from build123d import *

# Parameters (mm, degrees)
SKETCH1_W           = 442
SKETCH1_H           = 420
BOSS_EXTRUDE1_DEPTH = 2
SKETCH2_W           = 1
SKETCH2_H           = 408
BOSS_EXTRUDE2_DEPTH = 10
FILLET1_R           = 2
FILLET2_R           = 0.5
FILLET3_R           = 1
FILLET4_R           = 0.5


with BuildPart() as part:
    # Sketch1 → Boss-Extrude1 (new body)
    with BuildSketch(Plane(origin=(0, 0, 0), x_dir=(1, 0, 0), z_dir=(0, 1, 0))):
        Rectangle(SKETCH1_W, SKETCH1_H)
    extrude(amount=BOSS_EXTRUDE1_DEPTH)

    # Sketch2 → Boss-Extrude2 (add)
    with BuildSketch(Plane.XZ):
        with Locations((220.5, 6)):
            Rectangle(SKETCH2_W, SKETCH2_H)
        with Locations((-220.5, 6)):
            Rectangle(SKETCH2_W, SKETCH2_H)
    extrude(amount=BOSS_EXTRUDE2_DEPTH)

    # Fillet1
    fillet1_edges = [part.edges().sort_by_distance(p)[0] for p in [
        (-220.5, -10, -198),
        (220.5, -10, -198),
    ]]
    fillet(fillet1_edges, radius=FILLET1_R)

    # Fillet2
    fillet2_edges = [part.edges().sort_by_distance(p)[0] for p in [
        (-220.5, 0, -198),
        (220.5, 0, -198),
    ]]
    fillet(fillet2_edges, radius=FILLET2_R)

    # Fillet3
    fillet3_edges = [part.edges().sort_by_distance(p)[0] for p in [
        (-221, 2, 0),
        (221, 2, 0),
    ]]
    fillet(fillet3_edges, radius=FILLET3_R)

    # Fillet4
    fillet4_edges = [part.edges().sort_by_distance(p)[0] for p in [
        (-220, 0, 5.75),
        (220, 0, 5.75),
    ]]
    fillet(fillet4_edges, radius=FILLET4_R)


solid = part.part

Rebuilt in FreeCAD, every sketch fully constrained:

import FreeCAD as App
import Part
import Sketcher
from FreeCAD import Vector
Q = App.Units.Quantity


def edges_at(feature, points):
    """Names of the edges that pass closest to the given points."""
    edges = feature.Shape.Edges
    near = lambda p: min(range(len(edges)), key=lambda i: edges[i].distToShape(Part.Vertex(*p))[0])
    return sorted({f"Edge{near(p) + 1}" for p in points})


def add_polygon(sketch, points):
    """Adds a closed chain of lines whose ends are joined by coincident constraints."""
    first, n = sketch.GeometryCount, len(points)
    for a, b in zip(points, points[1:] + points[:1]):
        sketch.addGeometry(Part.LineSegment(App.Vector(*a, 0), App.Vector(*b, 0)), False)
    for i in range(n):
        sketch.addConstraint(Sketcher.Constraint("Coincident", first + i, 2, first + (i + 1) % n, 1))

doc = App.newDocument("Part")
params = doc.addObject("Spreadsheet::Sheet", "Params")
for row, (alias, value) in enumerate([
    ("sketch1_width", "442 mm"),
    ("sketch1_height", "420 mm"),
    ("pad1_length", "2 mm"),
    ("sketch2_width", "1 mm"),
    ("sketch2_height", "408 mm"),
    ("pad2_length", "10 mm"),
    ("fillet_radius", "2 mm"),
    ("fillet2_radius", "0.5 mm"),
    ("fillet3_radius", "1 mm"),
    ("fillet4_radius", "0.5 mm"),
], start=1):
    params.set(f"A{row}", alias)
    params.set(f"B{row}", "=" + value)
    params.setAlias(f"B{row}", alias)

body = doc.addObject("PartDesign::Body", "Body")

# Sketch on XZ plane
sketch1 = doc.addObject("Sketcher::SketchObject", "Sketch")
body.addObject(sketch1)
sketch1.AttachmentSupport = (doc.XZ_Plane, [""])
sketch1.MapMode = "FlatFace"
add_polygon(sketch1, [(-221, -210), (-221, 210), (221, 210), (221, -210)])  # lines 0-3
sketch1.addConstraint([
    Sketcher.Constraint("Vertical", 0),
    Sketcher.Constraint("Horizontal", 1),
    Sketcher.Constraint("Vertical", 2),
    Sketcher.Constraint("Horizontal", 3),
    Sketcher.Constraint("Symmetric", 0, 2, 2, 2, -1, 1),
    Sketcher.Constraint("DistanceX", 1, 1, 1, 2, Q("442 mm")),
    Sketcher.Constraint("DistanceY", 0, 1, 0, 2, Q("420 mm")),
])
sketch1.setExpression("Constraints[9]", "Params.sketch1_width")
sketch1.setExpression("Constraints[10]", "Params.sketch1_height")
pad1 = doc.addObject("PartDesign::Pad", "Pad")
body.addObject(pad1)
pad1.Profile = sketch1
pad1.setExpression("Length", "Params.pad1_length")
pad1.Reversed = True

# Sketch on XZ plane
sketch2 = doc.addObject("Sketcher::SketchObject", "Sketch001")
body.addObject(sketch2)
sketch2.AttachmentSupport = (doc.XZ_Plane, [""])
sketch2.MapMode = "FlatFace"
add_polygon(sketch2, [(220, 210), (220, -198), (221, -198), (221, 210)])  # lines 0-3
add_polygon(sketch2, [(-221, 210), (-221, -198), (-220, -198), (-220, 210)])  # lines 4-7
sketch2.addConstraint([
    Sketcher.Constraint("Vertical", 0),
    Sketcher.Constraint("Horizontal", 1),
    Sketcher.Constraint("Vertical", 2),
    Sketcher.Constraint("Horizontal", 3),
    Sketcher.Constraint("Vertical", 4),
    Sketcher.Constraint("Horizontal", 5),
    Sketcher.Constraint("Vertical", 6),
    Sketcher.Constraint("Horizontal", 7),
    Sketcher.Constraint("Symmetric", 1, 2, 4, 2, -2),
    Sketcher.Constraint("Symmetric", 3, 2, 6, 2, -2),
    Sketcher.Constraint("DistanceX", 1, 1, 1, 2, Q("1 mm")),
    Sketcher.Constraint("DistanceY", 0, 2, 0, 1, Q("408 mm")),
    Sketcher.Constraint("DistanceX", -1, 1, 0, 2, Q("220 mm")),
    Sketcher.Constraint("DistanceY", 0, 2, -1, 1, Q("198 mm")),
])
sketch2.setExpression("Constraints[18]", "Params.sketch2_width")
sketch2.setExpression("Constraints[19]", "Params.sketch2_height")
pad2 = doc.addObject("PartDesign::Pad", "Pad001")
body.addObject(pad2)
pad2.Profile = sketch2
pad2.setExpression("Length", "Params.pad2_length")
doc.recompute()

fillet = doc.addObject("PartDesign::Fillet", "Fillet")
body.addObject(fillet)
fillet.Base = (pad2, edges_at(pad2, [(-220.5, -10, -198), (220.5, -10, -198)]))
fillet.setExpression("Radius", "Params.fillet_radius")
doc.recompute()

fillet2 = doc.addObject("PartDesign::Fillet", "Fillet001")
body.addObject(fillet2)
fillet2.Base = (fillet, edges_at(fillet, [(-220.5, 0, -198), (220.5, 0, -198)]))
fillet2.setExpression("Radius", "Params.fillet2_radius")
doc.recompute()

fillet3 = doc.addObject("PartDesign::Fillet", "Fillet002")
body.addObject(fillet3)
fillet3.Base = (fillet2, edges_at(fillet2, [(-221, 2, 0), (221, 2, 0)]))
fillet3.setExpression("Radius", "Params.fillet3_radius")
doc.recompute()

fillet4 = doc.addObject("PartDesign::Fillet", "Fillet003")
body.addObject(fillet4)
fillet4.Base = (fillet3, edges_at(fillet3, [(-220, 0, 5.75), (220, 0, 5.75)]))
fillet4.setExpression("Radius", "Params.fillet4_radius")

doc.recompute()
